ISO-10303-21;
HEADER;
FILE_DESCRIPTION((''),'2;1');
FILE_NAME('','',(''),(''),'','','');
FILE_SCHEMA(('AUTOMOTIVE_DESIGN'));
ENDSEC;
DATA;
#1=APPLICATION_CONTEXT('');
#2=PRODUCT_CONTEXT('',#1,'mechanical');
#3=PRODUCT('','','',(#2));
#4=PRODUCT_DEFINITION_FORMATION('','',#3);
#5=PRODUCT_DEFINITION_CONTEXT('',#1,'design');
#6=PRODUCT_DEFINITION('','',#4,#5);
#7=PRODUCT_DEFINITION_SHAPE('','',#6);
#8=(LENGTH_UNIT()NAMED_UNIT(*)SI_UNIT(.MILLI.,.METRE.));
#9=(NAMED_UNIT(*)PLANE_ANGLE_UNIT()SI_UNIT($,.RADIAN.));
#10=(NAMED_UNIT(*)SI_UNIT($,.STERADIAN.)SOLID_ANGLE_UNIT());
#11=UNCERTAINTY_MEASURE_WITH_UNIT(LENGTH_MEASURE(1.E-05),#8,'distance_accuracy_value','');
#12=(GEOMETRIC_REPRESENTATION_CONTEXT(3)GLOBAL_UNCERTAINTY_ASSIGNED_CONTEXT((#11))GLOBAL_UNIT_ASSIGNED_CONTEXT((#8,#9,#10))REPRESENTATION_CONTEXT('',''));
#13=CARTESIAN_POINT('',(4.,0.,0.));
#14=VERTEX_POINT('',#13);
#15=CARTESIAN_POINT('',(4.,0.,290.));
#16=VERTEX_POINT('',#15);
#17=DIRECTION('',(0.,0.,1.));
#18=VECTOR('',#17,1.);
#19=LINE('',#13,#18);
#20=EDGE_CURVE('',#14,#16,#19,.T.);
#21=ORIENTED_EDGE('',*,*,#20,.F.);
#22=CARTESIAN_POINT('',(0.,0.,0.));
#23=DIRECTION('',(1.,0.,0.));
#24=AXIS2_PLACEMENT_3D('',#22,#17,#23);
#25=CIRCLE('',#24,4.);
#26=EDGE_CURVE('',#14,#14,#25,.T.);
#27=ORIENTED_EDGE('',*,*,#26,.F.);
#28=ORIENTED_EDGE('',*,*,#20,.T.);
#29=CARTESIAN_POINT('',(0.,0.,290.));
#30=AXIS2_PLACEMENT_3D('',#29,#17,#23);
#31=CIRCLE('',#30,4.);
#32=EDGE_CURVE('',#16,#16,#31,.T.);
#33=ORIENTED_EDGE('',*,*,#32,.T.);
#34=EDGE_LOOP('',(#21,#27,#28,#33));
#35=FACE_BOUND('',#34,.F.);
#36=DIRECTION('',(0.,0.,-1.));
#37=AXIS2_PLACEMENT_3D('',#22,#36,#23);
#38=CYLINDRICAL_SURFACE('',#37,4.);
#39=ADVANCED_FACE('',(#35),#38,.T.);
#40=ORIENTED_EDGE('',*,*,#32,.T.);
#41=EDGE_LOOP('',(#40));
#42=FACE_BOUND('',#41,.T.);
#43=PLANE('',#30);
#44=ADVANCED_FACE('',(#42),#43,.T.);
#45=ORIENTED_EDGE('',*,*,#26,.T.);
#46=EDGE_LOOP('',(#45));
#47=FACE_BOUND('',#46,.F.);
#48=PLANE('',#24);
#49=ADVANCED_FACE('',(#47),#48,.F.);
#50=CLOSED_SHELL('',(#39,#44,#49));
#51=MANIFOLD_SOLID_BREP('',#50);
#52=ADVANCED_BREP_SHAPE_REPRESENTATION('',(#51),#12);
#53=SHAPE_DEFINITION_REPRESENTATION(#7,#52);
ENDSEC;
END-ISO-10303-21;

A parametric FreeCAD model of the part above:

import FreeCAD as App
import Part
import Sketcher

V = App.Vector

doc = App.newDocument("Part")
params = doc.addObject("Spreadsheet::Sheet", "Params")
for row, (alias, value) in enumerate([
    ("sketch1_diameter", "8 mm"),
    ("pad1_length", "290 mm"),
], start=1):
    params.set(f"A{row}", alias)
    params.set(f"B{row}", "=" + value)
    params.setAlias(f"B{row}", alias)

body = doc.addObject("PartDesign::Body", "Body")

sketch1 = body.newObject("Sketcher::SketchObject", "Sketch")
sketch1.AttachmentSupport = (doc.getObject("XY_Plane"), [""])
sketch1.MapMode = "FlatFace"
sketch1.addGeometry(Part.Circle(V(0, 0, 0), V(0, 0, 1), 4), False)
sketch1.addConstraint(Sketcher.Constraint("Coincident", 0, 3, -1, 1))
sketch1.addConstraint(Sketcher.Constraint("Diameter", 0, 8.0))
sketch1.setExpression("Constraints[1]", "Params.sketch1_diameter")
pad1 = body.newObject("PartDesign::Pad", "Pad")
pad1.Profile = sketch1
pad1.setExpression("Length", "Params.pad1_length")

doc.recompute()
